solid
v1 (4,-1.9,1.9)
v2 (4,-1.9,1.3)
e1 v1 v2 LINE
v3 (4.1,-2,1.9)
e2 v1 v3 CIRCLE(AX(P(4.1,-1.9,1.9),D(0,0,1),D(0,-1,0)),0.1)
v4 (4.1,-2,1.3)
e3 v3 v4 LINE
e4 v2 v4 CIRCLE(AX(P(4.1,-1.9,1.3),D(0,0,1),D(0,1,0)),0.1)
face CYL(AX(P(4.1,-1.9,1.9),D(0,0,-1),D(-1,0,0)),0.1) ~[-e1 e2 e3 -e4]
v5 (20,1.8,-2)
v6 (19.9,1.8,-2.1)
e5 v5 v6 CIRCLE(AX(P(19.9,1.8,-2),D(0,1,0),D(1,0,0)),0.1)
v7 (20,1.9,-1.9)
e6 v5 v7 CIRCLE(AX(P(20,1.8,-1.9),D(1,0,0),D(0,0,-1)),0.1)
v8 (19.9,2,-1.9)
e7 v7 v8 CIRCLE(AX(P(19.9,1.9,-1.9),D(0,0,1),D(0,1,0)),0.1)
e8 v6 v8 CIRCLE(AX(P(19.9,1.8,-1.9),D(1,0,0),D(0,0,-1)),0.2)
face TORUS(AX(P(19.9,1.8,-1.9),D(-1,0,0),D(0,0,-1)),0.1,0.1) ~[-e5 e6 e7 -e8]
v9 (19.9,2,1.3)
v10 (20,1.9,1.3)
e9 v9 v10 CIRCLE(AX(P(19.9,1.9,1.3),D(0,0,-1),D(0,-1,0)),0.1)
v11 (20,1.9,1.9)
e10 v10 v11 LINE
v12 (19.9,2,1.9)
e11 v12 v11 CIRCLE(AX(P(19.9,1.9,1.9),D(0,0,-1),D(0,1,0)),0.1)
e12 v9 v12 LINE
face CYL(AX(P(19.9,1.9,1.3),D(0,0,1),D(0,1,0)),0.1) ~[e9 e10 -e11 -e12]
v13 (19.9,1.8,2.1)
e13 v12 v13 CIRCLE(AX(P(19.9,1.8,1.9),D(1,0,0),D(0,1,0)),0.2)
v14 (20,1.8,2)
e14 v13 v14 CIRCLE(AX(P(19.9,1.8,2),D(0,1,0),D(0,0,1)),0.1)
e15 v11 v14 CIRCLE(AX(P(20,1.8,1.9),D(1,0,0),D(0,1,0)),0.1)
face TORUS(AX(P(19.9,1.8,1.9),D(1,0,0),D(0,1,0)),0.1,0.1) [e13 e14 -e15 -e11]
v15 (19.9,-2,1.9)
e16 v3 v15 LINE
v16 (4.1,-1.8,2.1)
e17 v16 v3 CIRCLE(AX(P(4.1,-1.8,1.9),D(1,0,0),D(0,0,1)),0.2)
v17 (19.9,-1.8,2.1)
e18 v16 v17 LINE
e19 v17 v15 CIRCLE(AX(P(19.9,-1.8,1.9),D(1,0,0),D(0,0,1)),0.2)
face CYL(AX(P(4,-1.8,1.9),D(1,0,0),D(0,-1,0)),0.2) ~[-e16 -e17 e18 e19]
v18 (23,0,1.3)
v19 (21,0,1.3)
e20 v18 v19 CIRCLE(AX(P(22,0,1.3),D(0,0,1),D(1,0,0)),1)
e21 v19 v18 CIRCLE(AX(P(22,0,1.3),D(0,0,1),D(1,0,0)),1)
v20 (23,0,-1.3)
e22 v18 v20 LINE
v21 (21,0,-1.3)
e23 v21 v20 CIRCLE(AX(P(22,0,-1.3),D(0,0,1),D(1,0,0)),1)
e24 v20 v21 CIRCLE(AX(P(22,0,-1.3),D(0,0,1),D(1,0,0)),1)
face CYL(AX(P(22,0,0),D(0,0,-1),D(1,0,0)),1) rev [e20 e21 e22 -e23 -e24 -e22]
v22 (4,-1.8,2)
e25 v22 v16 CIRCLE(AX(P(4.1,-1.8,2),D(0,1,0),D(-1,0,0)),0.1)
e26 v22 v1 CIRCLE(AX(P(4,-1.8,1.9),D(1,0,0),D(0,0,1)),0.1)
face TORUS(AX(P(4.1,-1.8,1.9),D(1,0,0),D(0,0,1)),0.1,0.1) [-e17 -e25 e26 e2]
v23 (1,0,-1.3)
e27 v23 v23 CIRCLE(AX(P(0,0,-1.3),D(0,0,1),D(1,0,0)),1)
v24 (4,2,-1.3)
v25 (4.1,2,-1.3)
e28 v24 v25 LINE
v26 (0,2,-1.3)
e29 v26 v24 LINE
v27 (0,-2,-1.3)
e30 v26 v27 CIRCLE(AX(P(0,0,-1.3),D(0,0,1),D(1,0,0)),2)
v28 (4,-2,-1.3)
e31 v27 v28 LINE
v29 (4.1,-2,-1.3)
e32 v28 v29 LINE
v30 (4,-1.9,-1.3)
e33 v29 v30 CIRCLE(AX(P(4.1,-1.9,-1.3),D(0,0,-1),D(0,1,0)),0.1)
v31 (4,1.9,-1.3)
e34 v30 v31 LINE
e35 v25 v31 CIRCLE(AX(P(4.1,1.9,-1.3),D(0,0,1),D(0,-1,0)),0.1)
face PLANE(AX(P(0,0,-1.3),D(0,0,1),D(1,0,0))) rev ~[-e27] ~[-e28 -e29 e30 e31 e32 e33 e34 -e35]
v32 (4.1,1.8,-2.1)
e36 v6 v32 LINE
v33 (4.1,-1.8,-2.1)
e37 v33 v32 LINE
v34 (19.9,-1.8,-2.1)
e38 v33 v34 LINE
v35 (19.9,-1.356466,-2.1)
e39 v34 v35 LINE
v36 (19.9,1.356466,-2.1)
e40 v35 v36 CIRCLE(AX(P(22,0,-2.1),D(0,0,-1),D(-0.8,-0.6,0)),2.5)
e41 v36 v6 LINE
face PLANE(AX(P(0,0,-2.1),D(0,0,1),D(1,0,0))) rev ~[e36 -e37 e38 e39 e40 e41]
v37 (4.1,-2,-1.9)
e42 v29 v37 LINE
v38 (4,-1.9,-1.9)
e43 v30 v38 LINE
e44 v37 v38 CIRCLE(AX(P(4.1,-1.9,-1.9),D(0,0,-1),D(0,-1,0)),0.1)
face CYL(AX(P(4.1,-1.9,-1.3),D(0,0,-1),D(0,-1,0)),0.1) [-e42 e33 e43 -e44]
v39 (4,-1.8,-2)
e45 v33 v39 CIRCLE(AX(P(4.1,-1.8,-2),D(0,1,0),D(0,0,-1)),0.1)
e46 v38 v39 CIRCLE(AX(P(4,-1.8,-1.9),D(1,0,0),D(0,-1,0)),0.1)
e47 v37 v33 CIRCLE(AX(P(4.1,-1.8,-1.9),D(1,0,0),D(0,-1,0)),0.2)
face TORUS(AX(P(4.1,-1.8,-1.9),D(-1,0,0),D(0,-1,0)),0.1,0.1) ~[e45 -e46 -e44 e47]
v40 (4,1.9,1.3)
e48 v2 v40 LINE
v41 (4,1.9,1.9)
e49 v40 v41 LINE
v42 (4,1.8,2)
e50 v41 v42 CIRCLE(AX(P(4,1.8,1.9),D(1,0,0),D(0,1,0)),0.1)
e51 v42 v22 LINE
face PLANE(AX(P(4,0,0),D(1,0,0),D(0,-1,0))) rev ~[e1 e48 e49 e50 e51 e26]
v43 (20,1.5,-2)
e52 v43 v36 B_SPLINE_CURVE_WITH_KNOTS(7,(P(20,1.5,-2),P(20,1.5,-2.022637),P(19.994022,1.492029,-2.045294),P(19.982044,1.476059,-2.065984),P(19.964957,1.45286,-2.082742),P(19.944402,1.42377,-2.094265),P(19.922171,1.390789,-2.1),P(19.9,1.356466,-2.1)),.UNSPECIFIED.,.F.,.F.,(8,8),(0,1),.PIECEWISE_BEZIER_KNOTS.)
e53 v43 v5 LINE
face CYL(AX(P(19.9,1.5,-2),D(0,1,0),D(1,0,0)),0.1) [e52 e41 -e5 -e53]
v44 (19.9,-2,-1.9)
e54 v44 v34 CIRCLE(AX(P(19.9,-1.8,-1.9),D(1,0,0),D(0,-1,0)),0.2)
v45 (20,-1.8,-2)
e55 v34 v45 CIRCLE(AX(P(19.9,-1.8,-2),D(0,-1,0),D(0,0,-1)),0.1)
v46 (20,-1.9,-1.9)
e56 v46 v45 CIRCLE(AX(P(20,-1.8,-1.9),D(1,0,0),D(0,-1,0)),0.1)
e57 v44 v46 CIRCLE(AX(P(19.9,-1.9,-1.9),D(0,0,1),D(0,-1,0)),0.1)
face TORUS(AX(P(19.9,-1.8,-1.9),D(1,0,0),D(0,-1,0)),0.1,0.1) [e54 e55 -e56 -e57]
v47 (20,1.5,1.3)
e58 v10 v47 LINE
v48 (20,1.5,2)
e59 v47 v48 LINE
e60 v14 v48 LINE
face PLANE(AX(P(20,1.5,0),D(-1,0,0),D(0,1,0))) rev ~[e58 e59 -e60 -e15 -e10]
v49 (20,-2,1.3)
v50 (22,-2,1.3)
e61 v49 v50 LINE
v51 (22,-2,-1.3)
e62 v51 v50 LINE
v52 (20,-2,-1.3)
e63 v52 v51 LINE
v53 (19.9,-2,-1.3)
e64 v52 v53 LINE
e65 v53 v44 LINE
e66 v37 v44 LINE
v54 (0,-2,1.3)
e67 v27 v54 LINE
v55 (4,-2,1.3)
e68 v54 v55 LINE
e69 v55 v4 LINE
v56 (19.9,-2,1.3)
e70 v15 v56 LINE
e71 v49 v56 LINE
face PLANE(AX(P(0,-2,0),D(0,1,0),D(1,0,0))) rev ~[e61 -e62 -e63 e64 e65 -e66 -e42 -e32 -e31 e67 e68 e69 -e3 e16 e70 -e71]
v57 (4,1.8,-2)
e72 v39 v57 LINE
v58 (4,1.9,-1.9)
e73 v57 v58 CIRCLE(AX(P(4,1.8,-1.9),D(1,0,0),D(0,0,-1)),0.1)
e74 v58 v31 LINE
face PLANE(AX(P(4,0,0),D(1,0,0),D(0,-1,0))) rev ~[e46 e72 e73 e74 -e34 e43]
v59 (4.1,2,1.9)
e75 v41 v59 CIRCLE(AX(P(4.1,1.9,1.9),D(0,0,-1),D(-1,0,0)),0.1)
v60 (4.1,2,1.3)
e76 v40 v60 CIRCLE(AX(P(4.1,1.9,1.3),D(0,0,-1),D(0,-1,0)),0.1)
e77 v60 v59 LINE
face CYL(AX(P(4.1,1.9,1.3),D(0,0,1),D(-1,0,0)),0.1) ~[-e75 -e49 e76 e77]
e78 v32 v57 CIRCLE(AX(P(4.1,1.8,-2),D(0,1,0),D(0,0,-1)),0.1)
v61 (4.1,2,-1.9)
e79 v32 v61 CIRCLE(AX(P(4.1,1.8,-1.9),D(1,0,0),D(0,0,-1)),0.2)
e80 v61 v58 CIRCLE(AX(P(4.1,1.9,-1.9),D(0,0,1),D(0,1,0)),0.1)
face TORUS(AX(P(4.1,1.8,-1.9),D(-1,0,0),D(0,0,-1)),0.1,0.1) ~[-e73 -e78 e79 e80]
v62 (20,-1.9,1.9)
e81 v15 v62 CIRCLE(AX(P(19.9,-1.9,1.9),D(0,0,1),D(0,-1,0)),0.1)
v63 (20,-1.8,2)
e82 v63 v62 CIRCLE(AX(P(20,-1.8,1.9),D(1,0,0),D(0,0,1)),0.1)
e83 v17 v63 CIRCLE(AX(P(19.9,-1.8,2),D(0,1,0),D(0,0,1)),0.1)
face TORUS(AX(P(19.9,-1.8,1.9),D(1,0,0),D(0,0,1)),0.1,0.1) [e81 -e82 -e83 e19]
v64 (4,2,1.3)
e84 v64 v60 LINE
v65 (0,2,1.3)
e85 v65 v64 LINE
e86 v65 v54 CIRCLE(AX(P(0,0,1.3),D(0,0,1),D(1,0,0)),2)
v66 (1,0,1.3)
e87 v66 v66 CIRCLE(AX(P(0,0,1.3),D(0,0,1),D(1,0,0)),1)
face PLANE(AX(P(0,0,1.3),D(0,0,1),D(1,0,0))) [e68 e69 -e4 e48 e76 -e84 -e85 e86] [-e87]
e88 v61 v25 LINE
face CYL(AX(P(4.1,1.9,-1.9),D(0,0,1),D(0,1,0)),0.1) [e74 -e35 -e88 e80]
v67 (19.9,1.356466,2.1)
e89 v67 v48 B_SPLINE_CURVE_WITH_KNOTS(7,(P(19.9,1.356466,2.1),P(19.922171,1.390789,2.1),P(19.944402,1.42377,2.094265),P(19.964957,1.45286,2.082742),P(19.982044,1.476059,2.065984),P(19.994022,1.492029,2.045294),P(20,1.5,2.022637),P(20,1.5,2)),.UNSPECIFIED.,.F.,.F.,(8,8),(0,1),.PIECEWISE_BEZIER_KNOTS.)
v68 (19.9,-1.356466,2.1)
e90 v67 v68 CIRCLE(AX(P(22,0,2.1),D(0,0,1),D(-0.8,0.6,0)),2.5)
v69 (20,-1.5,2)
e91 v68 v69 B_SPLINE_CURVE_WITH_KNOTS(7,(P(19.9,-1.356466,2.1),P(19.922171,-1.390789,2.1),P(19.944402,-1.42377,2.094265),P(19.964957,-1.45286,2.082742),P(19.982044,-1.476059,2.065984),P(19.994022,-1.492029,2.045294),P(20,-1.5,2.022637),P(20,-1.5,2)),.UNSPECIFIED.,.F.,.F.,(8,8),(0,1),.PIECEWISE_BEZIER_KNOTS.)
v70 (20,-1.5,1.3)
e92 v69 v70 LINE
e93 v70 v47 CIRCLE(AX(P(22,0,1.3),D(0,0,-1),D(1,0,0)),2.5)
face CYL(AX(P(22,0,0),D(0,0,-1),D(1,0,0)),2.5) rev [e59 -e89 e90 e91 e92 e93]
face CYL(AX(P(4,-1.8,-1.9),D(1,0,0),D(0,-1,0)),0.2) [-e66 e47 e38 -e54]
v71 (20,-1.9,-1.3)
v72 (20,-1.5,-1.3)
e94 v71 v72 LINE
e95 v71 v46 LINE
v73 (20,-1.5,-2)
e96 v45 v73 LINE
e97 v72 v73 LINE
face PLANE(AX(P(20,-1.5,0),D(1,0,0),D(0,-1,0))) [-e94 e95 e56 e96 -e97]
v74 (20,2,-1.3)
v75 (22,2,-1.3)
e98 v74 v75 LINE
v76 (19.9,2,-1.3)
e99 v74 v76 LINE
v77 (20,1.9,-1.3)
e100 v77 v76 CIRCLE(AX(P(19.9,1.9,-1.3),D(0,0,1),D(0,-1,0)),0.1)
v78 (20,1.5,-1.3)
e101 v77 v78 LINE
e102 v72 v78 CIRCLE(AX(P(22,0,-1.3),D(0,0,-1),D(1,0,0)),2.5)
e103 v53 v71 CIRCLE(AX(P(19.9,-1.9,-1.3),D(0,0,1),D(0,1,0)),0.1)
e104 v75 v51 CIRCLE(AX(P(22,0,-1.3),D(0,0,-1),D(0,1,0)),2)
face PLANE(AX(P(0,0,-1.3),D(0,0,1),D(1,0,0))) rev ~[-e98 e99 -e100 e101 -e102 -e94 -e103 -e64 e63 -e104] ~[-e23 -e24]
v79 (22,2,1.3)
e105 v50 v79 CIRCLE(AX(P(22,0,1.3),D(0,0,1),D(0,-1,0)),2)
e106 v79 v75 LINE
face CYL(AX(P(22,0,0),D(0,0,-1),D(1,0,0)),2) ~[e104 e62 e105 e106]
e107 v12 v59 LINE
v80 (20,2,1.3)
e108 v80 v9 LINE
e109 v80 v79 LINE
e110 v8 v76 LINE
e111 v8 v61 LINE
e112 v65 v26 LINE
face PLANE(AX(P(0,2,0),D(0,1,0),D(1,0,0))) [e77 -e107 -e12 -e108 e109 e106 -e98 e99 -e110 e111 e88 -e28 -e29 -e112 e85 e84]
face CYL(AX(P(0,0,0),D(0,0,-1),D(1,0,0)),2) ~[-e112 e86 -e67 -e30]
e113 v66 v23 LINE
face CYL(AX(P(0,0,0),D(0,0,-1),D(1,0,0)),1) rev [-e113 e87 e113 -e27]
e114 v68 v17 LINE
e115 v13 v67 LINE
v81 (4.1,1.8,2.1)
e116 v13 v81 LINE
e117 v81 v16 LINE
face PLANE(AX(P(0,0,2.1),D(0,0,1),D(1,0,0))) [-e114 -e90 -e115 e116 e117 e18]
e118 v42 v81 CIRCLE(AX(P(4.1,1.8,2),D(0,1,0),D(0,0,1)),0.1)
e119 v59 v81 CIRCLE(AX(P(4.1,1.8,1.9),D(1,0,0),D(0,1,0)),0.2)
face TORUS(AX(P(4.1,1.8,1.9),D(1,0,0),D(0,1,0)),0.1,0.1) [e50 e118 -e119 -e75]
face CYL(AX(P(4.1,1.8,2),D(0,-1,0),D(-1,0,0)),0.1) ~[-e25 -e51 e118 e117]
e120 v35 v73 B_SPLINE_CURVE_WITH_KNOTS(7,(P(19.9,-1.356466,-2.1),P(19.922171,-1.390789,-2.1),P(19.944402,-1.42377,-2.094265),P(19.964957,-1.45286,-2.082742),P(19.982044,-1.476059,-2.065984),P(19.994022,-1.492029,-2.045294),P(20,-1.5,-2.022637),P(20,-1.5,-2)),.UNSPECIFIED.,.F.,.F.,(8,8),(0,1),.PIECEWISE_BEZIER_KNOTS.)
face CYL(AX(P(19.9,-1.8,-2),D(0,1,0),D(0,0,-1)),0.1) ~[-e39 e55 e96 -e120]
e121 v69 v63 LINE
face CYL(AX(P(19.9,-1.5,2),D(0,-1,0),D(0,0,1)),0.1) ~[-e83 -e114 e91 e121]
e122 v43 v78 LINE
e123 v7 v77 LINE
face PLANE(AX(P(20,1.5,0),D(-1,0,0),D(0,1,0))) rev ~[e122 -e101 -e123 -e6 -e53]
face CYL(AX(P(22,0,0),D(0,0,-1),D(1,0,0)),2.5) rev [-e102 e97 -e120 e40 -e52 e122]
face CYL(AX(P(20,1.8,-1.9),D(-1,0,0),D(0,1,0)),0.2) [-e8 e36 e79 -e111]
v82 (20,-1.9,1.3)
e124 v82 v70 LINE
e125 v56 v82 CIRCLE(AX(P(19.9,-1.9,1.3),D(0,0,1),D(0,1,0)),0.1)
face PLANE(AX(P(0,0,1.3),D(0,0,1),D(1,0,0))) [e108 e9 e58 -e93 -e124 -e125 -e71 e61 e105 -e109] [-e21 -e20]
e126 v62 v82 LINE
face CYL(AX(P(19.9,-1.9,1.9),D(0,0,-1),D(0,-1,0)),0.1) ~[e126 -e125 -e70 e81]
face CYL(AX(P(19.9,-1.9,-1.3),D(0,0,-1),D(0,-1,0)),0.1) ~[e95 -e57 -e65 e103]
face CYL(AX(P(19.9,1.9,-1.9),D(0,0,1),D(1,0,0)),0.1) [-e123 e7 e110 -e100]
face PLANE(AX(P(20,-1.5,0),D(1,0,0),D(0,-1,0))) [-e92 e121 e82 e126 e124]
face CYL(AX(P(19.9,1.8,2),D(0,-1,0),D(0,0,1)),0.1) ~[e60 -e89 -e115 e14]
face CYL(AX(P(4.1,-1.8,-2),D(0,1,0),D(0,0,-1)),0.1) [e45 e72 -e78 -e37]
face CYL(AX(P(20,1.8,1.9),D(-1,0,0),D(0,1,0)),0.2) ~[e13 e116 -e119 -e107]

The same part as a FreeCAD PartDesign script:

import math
import FreeCAD as App
import Part
import Sketcher
from FreeCAD import Vector


def edges_at(feature, points):
    """Names of the edges that pass closest to the given points."""
    edges = feature.Shape.Edges
    near = lambda p: min(range(len(edges)), key=lambda i: edges[i].distToShape(Part.Vertex(*p))[0])
    return sorted({f"Edge{near(p) + 1}" for p in points})

doc = App.newDocument("Part")
body = doc.addObject("PartDesign::Body", "Body")

# Sketch on XY plane
sketch1 = body.newObject("Sketcher::SketchObject", "Sketch")
sketch1.AttachmentSupport = (doc.getObject("XY_Plane"), [""])
sketch1.MapMode = "FlatFace"
sketch1.addGeometry([
    Part.ArcOfCircle(Part.Circle(Vector(0, 0, 0), Vector(0, 0, 1), 2), math.radians(90), math.radians(270)),  # 0
    Part.LineSegment(Vector(0, -2, 0), Vector(22, -2, 0)),  # 1
    Part.ArcOfCircle(Part.Circle(Vector(22, 0, 0), Vector(0, 0, 1), 2), math.radians(-90), math.radians(90)),  # 2
    Part.LineSegment(Vector(22, 2, 0), Vector(0, 2, 0)),  # 3
    Part.Circle(Vector(0, 0, 0), Vector(0, 0, 1), 1),  # 4
    Part.Circle(Vector(22, 0, 0), Vector(0, 0, 1), 1),  # 5
], False)
sketch1.addConstraint([
    Sketcher.Constraint("Tangent", 0, 2, 1, 1),
    Sketcher.Constraint("Tangent", 1, 2, 2, 1),
    Sketcher.Constraint("Tangent", 2, 2, 3, 1),
    Sketcher.Constraint("Tangent", 3, 2, 0, 1),
    Sketcher.Constraint("Horizontal", 1),
    Sketcher.Constraint("Horizontal", 3),
    Sketcher.Constraint("Coincident", 0, 3, -1, 1),
    Sketcher.Constraint("Coincident", 4, 3, -1, 1),
    Sketcher.Constraint("Coincident", 5, 3, 2, 3),
    Sketcher.Constraint("Equal", 4, 5),
    Sketcher.Constraint("Diameter", 4, 2.0),
    Sketcher.Constraint("Radius", 0, 2.0),
    Sketcher.Constraint("DistanceX", 1, 1, 1, 2, 22.0),
])
pad1 = body.newObject("PartDesign::Pad", "Pad")
pad1.Profile = sketch1
pad1.Length = 2.6
pad1.Midplane = True

# Sketch on XY plane
sketch2 = body.newObject("Sketcher::SketchObject", "Sketch001")
sketch2.AttachmentSupport = (doc.getObject("XY_Plane"), [""])
sketch2.MapMode = "FlatFace"
sketch2.addGeometry([
    Part.ArcOfCircle(Part.Circle(Vector(22, 0, 0), Vector(0, 0, 1), 2.5), math.radians(143), math.radians(217)),  # 0
    Part.LineSegment(Vector(20, 1.5, 0), Vector(20, 2, 0)),  # 1
    Part.LineSegment(Vector(20, 2, 0), Vector(4, 2, 0)),  # 2
    Part.LineSegment(Vector(4, 2, 0), Vector(4, -2, 0)),  # 3
    Part.LineSegment(Vector(4, -2, 0), Vector(20, -2, 0)),  # 4
    Part.LineSegment(Vector(20, -2, 0), Vector(20, -1.5, 0)),  # 5
], False)
sketch2.addConstraint([
    Sketcher.Constraint("Coincident", 0, 1, 1, 1),
    Sketcher.Constraint("Coincident", 1, 2, 2, 1),
    Sketcher.Constraint("Coincident", 2, 2, 3, 1),
    Sketcher.Constraint("Coincident", 3, 2, 4, 1),
    Sketcher.Constraint("Coincident", 4, 2, 5, 1),
    Sketcher.Constraint("Coincident", 5, 2, 0, 2),
    Sketcher.Constraint("Vertical", 1),
    Sketcher.Constraint("Horizontal", 2),
    Sketcher.Constraint("Vertical", 3),
    Sketcher.Constraint("Horizontal", 4),
    Sketcher.Constraint("Vertical", 5),
    Sketcher.Constraint("Symmetric", 1, 2, 4, 2, -1),
    Sketcher.Constraint("PointOnObject", 0, 3, -1),
    Sketcher.Constraint("Radius", 0, 2.5),
    Sketcher.Constraint("DistanceY", 3, 2, 3, 1, 4.0),
    Sketcher.Constraint("DistanceX", -1, 1, 2, 2, 4.0),
    Sketcher.Constraint("DistanceX", 2, 2, 2, 1, 16.0),
    Sketcher.Constraint("DistanceY", 1, 1, 1, 2, 0.5),
])
pad2 = body.newObject("PartDesign::Pad", "Pad001")
pad2.Profile = sketch2
pad2.Length = 4.2
pad2.Midplane = True
doc.recompute()

fillet = body.newObject("PartDesign::Fillet", "Fillet")
fillet.Base = (pad2, edges_at(pad2, [
    (12, 2, 2.1),
    (12, -2, 2.1),
    (12, -2, -2.1),
    (12, 2, -2.1),
]))
fillet.Radius = 0.2
doc.recompute()

fillet2 = body.newObject("PartDesign::Fillet", "Fillet001")
fillet2.Base = (fillet, edges_at(fillet, [
    (20, 1.941, 2.041),
    (20, 2, 1.6),
    (20, 1.65, 2.1),
    (20, -1.65, 2.1),
    (20, -2, 1.6),
    (20, -1.941, 2.041),
    (20, 1.65, -2.1),
    (20, 2, -1.6),
    (20, 1.941, -2.041),
    (20, -1.941, -2.041),
    (20, -2, -1.6),
    (20, -1.65, -2.1),
    (4, 2, -1.6),
    (4, 0, -2.1),
    (4, -2, 1.6),
    (4, -2, -1.6),
    (4, 1.941, -2.041),
    (4, 1.941, 2.041),
    (4, 0, 2.1),
    (4, 2, 1.6),
]))
fillet2.Radius = 0.1

doc.recompute()
